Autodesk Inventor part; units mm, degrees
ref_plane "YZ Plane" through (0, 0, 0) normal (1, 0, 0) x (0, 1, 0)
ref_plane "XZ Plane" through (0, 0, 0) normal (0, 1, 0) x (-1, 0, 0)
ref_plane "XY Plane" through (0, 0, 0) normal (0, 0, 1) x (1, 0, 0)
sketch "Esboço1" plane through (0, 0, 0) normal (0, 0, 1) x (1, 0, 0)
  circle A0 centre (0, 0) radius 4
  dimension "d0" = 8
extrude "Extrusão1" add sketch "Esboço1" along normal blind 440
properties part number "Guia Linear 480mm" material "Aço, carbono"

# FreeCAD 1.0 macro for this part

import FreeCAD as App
import Part
import Sketcher
Q = App.Units.Quantity

doc = App.newDocument("Part")
params = doc.addObject("Spreadsheet::Sheet", "Params")
for row, (alias, value) in enumerate([
    ("sketch1_diameter", "8 mm"),
    ("pad1_length", "440 mm"),
], start=1):
    params.set(f"A{row}", alias)
    params.set(f"B{row}", "=" + value)
    params.setAlias(f"B{row}", alias)

body = doc.addObject("PartDesign::Body", "Body")

# Sketch on XY plane
sketch1 = body.newObject("Sketcher::SketchObject", "Sketch")
sketch1.AttachmentSupport = (doc.getObject("XY_Plane"), [""])
sketch1.MapMode = "FlatFace"
sketch1.addGeometry(Part.Circle(App.Vector(0, 0, 0), App.Vector(0, 0, 1), 4), False)
sketch1.addConstraint([
    Sketcher.Constraint("Coincident", 0, 3, -1, 1),
    Sketcher.Constraint("Diameter", 0, Q("8 mm")),
])
sketch1.setExpression("Constraints[1]", "Params.sketch1_diameter")
pad1 = body.newObject("PartDesign::Pad", "Pad")
pad1.Profile = sketch1
pad1.setExpression("Length", "Params.pad1_length")

doc.recompute()
